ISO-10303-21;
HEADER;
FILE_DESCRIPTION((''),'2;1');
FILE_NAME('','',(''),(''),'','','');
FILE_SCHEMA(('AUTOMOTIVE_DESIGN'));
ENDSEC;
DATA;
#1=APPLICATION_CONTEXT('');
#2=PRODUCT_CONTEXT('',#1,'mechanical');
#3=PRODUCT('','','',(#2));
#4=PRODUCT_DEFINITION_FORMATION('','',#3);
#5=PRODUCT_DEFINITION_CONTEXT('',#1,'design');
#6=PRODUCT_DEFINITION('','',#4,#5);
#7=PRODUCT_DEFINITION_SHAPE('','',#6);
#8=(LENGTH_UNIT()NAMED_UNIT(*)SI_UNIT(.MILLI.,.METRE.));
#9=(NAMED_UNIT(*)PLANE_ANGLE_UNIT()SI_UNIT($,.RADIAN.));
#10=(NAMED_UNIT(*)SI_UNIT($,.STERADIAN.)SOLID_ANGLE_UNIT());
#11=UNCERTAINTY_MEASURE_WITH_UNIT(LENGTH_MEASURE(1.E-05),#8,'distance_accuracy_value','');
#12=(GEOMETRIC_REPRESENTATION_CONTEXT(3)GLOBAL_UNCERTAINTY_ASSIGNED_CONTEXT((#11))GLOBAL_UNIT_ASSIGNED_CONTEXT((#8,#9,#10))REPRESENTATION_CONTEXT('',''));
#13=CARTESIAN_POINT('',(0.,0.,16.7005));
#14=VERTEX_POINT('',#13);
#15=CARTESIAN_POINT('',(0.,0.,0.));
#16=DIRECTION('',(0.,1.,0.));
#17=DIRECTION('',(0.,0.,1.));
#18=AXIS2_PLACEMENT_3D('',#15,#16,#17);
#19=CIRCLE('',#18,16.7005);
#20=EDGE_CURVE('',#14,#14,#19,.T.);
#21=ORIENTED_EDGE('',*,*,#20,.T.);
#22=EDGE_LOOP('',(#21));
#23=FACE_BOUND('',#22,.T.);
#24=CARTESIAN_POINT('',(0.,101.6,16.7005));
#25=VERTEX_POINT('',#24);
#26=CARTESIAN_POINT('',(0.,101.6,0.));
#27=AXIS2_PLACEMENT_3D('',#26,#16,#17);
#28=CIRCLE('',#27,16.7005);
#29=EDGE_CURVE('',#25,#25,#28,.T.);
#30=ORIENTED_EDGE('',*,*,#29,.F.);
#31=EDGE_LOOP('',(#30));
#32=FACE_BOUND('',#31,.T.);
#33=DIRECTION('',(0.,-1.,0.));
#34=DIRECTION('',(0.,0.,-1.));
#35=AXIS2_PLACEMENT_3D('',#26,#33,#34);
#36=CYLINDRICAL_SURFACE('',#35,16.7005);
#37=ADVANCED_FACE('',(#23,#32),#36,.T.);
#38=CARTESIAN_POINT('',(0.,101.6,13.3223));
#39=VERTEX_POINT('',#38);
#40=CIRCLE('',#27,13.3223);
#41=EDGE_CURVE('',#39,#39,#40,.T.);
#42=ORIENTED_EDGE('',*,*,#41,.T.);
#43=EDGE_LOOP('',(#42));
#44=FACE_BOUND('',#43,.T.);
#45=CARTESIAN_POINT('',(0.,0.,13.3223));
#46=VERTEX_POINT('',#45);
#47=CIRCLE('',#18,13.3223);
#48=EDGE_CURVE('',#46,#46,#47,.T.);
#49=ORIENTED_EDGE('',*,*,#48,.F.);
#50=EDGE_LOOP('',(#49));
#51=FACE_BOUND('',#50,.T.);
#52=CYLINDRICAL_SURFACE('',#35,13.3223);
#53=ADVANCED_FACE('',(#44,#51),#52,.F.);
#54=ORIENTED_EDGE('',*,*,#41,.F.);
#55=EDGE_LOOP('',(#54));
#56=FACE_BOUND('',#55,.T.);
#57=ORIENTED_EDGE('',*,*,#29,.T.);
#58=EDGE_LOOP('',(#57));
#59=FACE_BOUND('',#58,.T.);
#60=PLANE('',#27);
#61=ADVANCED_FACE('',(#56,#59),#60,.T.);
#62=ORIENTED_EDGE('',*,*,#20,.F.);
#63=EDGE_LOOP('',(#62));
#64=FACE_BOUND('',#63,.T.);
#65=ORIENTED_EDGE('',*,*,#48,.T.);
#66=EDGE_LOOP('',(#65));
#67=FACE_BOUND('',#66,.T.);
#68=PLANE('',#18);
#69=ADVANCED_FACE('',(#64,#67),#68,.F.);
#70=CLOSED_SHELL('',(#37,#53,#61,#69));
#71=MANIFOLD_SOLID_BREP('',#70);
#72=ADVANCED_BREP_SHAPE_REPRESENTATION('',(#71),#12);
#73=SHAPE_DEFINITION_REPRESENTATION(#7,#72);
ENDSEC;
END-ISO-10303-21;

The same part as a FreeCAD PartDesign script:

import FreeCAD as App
import Part
import Sketcher

V = App.Vector
Q = App.Units.Quantity

doc = App.newDocument("Part")
params = doc.addObject("Spreadsheet::Sheet", "Params")
for row, (alias, value) in enumerate([
    ("sketch1_diameter", "1.315 in"),
    ("sketch1_diameter2", "1.049 in"),
    ("pad1_length", "4 in"),
], start=1):
    params.set(f"A{row}", alias)
    params.set(f"B{row}", "=" + value)
    params.setAlias(f"B{row}", alias)

body = doc.addObject("PartDesign::Body", "Body")

# Sketch on XZ plane
sketch1 = doc.addObject("Sketcher::SketchObject", "Sketch")
body.addObject(sketch1)
sketch1.AttachmentSupport = (doc.XZ_Plane, [""])
sketch1.MapMode = "FlatFace"
sketch1.addGeometry(Part.Circle(V(0, 0, 0), V(0, 0, 1), 17), False)
sketch1.addGeometry(Part.Circle(V(0, 0, 0), V(0, 0, 1), 13), False)
sketch1.addConstraint(Sketcher.Constraint("Coincident", 0, 3, -1, 1))
sketch1.addConstraint(Sketcher.Constraint("Coincident", 1, 3, -1, 1))
sketch1.addConstraint(Sketcher.Constraint("Diameter", 0, Q("1.315 in")))
sketch1.addConstraint(Sketcher.Constraint("Diameter", 1, Q("1.049 in")))
sketch1.setExpression("Constraints[2]", "Params.sketch1_diameter")
sketch1.setExpression("Constraints[3]", "Params.sketch1_diameter2")
pad1 = doc.addObject("PartDesign::Pad", "Pad")
body.addObject(pad1)
pad1.Profile = sketch1
pad1.setExpression("Length", "Params.pad1_length")
pad1.Reversed = True

doc.recompute()
